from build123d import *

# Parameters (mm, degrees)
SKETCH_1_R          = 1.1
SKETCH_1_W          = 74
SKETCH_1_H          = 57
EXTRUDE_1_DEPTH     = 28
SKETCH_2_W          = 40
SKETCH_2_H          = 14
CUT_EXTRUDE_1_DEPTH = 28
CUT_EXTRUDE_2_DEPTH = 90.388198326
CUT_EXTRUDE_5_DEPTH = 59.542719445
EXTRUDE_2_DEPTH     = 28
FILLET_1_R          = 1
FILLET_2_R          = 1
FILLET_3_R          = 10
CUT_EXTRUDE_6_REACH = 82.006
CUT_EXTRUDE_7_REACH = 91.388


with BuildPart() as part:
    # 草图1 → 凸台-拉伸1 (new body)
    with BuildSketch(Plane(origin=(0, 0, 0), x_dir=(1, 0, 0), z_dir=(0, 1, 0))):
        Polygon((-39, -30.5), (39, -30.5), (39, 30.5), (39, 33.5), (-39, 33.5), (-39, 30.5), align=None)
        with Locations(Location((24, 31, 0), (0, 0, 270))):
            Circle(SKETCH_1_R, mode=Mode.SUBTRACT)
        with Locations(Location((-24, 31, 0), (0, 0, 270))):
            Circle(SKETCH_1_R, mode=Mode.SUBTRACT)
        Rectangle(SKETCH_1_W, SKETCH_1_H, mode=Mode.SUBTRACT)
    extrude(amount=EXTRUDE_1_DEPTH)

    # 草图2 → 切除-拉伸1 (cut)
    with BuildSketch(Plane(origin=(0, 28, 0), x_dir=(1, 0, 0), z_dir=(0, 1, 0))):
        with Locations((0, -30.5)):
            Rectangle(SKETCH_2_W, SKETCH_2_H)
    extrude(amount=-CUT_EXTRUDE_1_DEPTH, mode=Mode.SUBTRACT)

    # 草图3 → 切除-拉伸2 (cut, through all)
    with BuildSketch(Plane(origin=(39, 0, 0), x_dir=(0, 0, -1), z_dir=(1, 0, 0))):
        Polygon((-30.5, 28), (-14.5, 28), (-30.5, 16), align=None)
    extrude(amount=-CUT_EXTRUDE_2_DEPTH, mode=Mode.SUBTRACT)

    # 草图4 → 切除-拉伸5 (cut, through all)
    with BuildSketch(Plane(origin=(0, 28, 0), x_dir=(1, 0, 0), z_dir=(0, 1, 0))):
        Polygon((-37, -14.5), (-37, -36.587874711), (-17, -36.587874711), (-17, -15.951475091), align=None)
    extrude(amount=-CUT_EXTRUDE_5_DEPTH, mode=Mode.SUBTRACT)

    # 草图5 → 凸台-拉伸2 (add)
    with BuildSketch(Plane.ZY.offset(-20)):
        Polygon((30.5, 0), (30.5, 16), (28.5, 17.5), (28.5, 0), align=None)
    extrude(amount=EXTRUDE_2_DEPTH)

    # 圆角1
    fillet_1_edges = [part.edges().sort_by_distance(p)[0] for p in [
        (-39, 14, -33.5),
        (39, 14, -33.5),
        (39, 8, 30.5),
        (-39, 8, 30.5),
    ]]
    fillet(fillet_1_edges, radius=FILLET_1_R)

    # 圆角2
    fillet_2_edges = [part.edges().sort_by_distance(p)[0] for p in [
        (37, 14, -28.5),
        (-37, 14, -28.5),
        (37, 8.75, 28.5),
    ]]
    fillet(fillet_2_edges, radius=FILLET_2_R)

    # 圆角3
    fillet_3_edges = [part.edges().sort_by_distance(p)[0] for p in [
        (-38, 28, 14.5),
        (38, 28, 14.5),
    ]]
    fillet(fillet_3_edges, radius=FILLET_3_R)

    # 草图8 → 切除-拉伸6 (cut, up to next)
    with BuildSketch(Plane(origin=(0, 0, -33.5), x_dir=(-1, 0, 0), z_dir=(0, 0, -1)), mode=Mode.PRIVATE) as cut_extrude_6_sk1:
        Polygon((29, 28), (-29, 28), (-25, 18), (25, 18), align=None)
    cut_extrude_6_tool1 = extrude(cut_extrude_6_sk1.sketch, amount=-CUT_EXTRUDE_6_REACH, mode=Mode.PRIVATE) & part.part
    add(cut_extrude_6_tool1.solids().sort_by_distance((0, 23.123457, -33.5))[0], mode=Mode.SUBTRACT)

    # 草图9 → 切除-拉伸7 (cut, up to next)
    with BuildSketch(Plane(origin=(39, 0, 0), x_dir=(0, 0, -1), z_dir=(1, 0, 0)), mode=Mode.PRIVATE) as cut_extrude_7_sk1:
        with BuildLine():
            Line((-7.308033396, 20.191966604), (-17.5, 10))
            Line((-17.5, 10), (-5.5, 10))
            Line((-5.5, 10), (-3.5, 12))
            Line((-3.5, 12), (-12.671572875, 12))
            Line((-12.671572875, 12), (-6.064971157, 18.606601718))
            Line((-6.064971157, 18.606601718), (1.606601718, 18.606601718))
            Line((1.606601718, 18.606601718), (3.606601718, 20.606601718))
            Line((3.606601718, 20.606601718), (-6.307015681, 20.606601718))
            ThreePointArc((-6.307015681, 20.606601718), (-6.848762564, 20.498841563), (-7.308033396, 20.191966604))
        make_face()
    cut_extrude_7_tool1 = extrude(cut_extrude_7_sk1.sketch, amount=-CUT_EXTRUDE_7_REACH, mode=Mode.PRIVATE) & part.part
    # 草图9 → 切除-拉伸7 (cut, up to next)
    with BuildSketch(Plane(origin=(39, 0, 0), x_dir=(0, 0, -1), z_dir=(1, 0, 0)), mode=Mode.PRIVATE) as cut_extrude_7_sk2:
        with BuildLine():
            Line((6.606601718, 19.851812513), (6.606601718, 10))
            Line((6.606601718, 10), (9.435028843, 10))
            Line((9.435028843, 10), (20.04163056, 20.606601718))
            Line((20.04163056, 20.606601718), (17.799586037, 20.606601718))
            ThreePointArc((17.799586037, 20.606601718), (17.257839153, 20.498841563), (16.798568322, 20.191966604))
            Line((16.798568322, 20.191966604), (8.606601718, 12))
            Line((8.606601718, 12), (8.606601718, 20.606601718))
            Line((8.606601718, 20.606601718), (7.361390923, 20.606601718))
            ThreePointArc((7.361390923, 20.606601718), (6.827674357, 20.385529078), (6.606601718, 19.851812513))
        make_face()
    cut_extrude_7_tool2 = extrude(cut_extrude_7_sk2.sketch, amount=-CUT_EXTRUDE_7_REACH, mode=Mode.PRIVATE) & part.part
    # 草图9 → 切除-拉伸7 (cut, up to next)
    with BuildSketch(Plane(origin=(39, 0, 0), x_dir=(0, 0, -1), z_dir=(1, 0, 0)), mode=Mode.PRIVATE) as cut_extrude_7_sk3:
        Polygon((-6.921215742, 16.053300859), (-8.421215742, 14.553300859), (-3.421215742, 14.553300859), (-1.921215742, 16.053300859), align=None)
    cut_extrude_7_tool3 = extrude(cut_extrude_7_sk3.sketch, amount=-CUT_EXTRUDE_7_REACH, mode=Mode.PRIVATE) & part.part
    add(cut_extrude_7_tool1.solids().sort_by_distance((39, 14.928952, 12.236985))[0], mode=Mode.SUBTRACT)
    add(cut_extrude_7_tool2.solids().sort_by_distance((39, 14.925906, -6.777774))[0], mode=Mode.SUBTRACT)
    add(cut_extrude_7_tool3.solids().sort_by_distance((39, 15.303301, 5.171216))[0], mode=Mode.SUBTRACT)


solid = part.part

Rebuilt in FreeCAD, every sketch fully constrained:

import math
import FreeCAD as App
import Part
import Sketcher
Q = App.Units.Quantity


def edges_at(feature, points):
    """Names of the edges that pass closest to the given points."""
    edges = feature.Shape.Edges
    near = lambda p: min(range(len(edges)), key=lambda i: edges[i].distToShape(Part.Vertex(*p))[0])
    return sorted({f"Edge{near(p) + 1}" for p in points})

doc = App.newDocument("Part")
body = doc.addObject("PartDesign::Body", "Body")

sketch1 = body.newObject("Sketcher::SketchObject", "Sketch")
sketch1.AttachmentSupport = (doc.getObject("XZ_Plane"), [""])
sketch1.MapMode = "FlatFace"
sketch1.addGeometry([
    Part.LineSegment(App.Vector(-39, 30.5, 0), App.Vector(39, 30.5, 0)),
    Part.LineSegment(App.Vector(39, 30.5, 0), App.Vector(39, -33.5, 0)),
    Part.LineSegment(App.Vector(39, -33.5, 0), App.Vector(-39, -33.5, 0)),
    Part.LineSegment(App.Vector(-39, -33.5, 0), App.Vector(-39, 30.5, 0)),
    Part.LineSegment(App.Vector(37, 28.5, 0), App.Vector(-37, 28.5, 0)),
    Part.LineSegment(App.Vector(-37, 28.5, 0), App.Vector(-37, -28.5, 0)),
    Part.LineSegment(App.Vector(-37, -28.5, 0), App.Vector(37, -28.5, 0)),
    Part.LineSegment(App.Vector(37, -28.5, 0), App.Vector(37, 28.5, 0)),
    Part.Circle(App.Vector(-24, -31, 0), App.Vector(0, 0, 1), 1.1),
    Part.Circle(App.Vector(24, -31, 0), App.Vector(0, 0, 1), 1.1),
], False)
sketch1.addConstraint([
    Sketcher.Constraint("Coincident", 0, 2, 1, 1),
    Sketcher.Constraint("Coincident", 1, 2, 2, 1),
    Sketcher.Constraint("Coincident", 2, 2, 3, 1),
    Sketcher.Constraint("Coincident", 3, 2, 0, 1),
    Sketcher.Constraint("Coincident", 4, 2, 5, 1),
    Sketcher.Constraint("Coincident", 5, 2, 6, 1),
    Sketcher.Constraint("Coincident", 6, 2, 7, 1),
    Sketcher.Constraint("Coincident", 7, 2, 4, 1),
    Sketcher.Constraint("Horizontal", 0),
    Sketcher.Constraint("Vertical", 1),
    Sketcher.Constraint("Horizontal", 2),
    Sketcher.Constraint("Vertical", 3),
    Sketcher.Constraint("Horizontal", 4),
    Sketcher.Constraint("Vertical", 5),
    Sketcher.Constraint("Horizontal", 6),
    Sketcher.Constraint("Vertical", 7),
    Sketcher.Constraint("Equal", 8, 9),
    Sketcher.Constraint("Symmetric", 4, 2, 6, 2, -1, 1),
    Sketcher.Constraint("Symmetric", 8, 3, 9, 3, -2),
    Sketcher.Constraint("Diameter", 8, Q("2.2 mm")),
    Sketcher.Constraint("DistanceX", 0, 1, 0, 2, Q("78 mm")),
    Sketcher.Constraint("DistanceX", 4, 2, 4, 1, Q("74 mm")),
    Sketcher.Constraint("DistanceY", 1, 2, 1, 1, Q("64 mm")),
    Sketcher.Constraint("DistanceY", 5, 2, 5, 1, Q("57 mm")),
    Sketcher.Constraint("DistanceX", 8, 3, -1, 1, Q("24 mm")),
    Sketcher.Constraint("DistanceY", 8, 3, -1, 1, Q("31 mm")),
    Sketcher.Constraint("DistanceX", -1, 1, 0, 2, Q("39 mm")),
    Sketcher.Constraint("DistanceY", 4, 2, 3, 2, Q("2 mm")),
])
pad1 = body.newObject("PartDesign::Pad", "Pad")
pad1.Profile = sketch1
pad1.Length = 28
pad1.Reversed = True

sketch2 = body.newObject("Sketcher::SketchObject", "Sketch001")
sketch2.AttachmentSupport = (doc.getObject("XZ_Plane"), [""])
sketch2.MapMode = "FlatFace"
sketch2.AttachmentOffset = App.Placement(App.Vector(0, 0, -28), App.Rotation())
sketch2.addGeometry([
    Part.LineSegment(App.Vector(-20, 24, 0), App.Vector(-20, 38, 0)),
    Part.LineSegment(App.Vector(-20, 38, 0), App.Vector(20, 38, 0)),
    Part.LineSegment(App.Vector(20, 38, 0), App.Vector(20, 24, 0)),
    Part.LineSegment(App.Vector(20, 24, 0), App.Vector(-20, 24, 0)),
], False)
sketch2.addConstraint([
    Sketcher.Constraint("Coincident", 0, 2, 1, 1),
    Sketcher.Constraint("Coincident", 1, 2, 2, 1),
    Sketcher.Constraint("Coincident", 2, 2, 3, 1),
    Sketcher.Constraint("Coincident", 3, 2, 0, 1),
    Sketcher.Constraint("Vertical", 0),
    Sketcher.Constraint("Horizontal", 1),
    Sketcher.Constraint("Vertical", 2),
    Sketcher.Constraint("Horizontal", 3),
    Sketcher.Constraint("DistanceX", 1, 1, 1, 2, Q("40 mm")),
    Sketcher.Constraint("DistanceY", 0, 1, 0, 2, Q("14 mm")),
    Sketcher.Constraint("DistanceX", 0, 2, -1, 1, Q("20 mm")),
    Sketcher.Constraint("DistanceY", -1, 1, 0, 2, Q("37.5 mm")),
])
pocket1 = body.newObject("PartDesign::Pocket", "Pocket")
pocket1.Profile = sketch2
pocket1.Length = 28
pocket1.Reversed = True

sketch3 = body.newObject("Sketcher::SketchObject", "Sketch002")
sketch3.AttachmentSupport = (doc.getObject("YZ_Plane"), [""])
sketch3.MapMode = "FlatFace"
sketch3.AttachmentOffset = App.Placement(App.Vector(0, 0, 39), App.Rotation())
sketch3.addGeometry([
    Part.LineSegment(App.Vector(28, 14, 0), App.Vector(28, 30, 0)),
    Part.LineSegment(App.Vector(28, 30, 0), App.Vector(16, 30, 0)),
    Part.LineSegment(App.Vector(16, 30, 0), App.Vector(28, 14, 0)),
], False)
sketch3.addConstraint([
    Sketcher.Constraint("Coincident", 0, 2, 1, 1),
    Sketcher.Constraint("Coincident", 1, 2, 2, 1),
    Sketcher.Constraint("Coincident", 2, 2, 0, 1),
    Sketcher.Constraint("Vertical", 0),
    Sketcher.Constraint("Horizontal", 1),
    Sketcher.Constraint("DistanceX", 1, 2, 1, 1, Q("12 mm")),
    Sketcher.Constraint("DistanceY", 0, 1, 0, 2, Q("16 mm")),
    Sketcher.Constraint("DistanceX", -1, 1, 0, 2, Q("28 mm")),
    Sketcher.Constraint("DistanceY", -1, 1, 0, 2, Q("30.5 mm")),
])
pocket2 = body.newObject("PartDesign::Pocket", "Pocket001")
pocket2.Profile = sketch3
pocket2.Type = "ThroughAll"

sketch4 = body.newObject("Sketcher::SketchObject", "Sketch003")
sketch4.AttachmentSupport = (doc.getObject("XZ_Plane"), [""])
sketch4.MapMode = "FlatFace"
sketch4.AttachmentOffset = App.Placement(App.Vector(0, 0, -28), App.Rotation())
sketch4.addGeometry([
    Part.LineSegment(App.Vector(-37, 14, 0), App.Vector(-37, 37, 0)),
    Part.LineSegment(App.Vector(-37, 37, 0), App.Vector(-17, 37, 0)),
    Part.LineSegment(App.Vector(-17, 37, 0), App.Vector(-17, 16, 0)),
    Part.LineSegment(App.Vector(-17, 16, 0), App.Vector(-37, 14, 0)),
], False)
sketch4.addConstraint([
    Sketcher.Constraint("Coincident", 0, 2, 1, 1),
    Sketcher.Constraint("Coincident", 1, 2, 2, 1),
    Sketcher.Constraint("Coincident", 2, 2, 3, 1),
    Sketcher.Constraint("Coincident", 3, 2, 0, 1),
    Sketcher.Constraint("Vertical", 0),
    Sketcher.Constraint("Horizontal", 1),
    Sketcher.Constraint("Vertical", 2),
    Sketcher.Constraint("DistanceX", 1, 1, 1, 2, Q("20 mm")),
    Sketcher.Constraint("DistanceX", 0, 2, -1, 1, Q("37 mm")),
    Sketcher.Constraint("DistanceY", -1, 1, 3, 2, Q("14.5 mm")),
    Sketcher.Constraint("DistanceY", 2, 2, 2, 1, Q("20.6364 mm")),
    Sketcher.Constraint("Distance", 3, Q("20.0526 mm")),
])
pocket3 = body.newObject("PartDesign::Pocket", "Pocket002")
pocket3.Profile = sketch4
pocket3.Type = "ThroughAll"
pocket3.Reversed = True

sketch5 = body.newObject("Sketcher::SketchObject", "Sketch004")
sketch5.AttachmentSupport = (doc.getObject("YZ_Plane"), [""])
sketch5.MapMode = "FlatFace"
sketch5.AttachmentOffset = App.Placement(App.Vector(0, 0, 20), App.Rotation())
sketch5.addGeometry([
    Part.LineSegment(App.Vector(0, 30.5, 0), App.Vector(16, 30.5, 0)),
    Part.LineSegment(App.Vector(16, 30.5, 0), App.Vector(17.5, 28.5, 0)),
    Part.LineSegment(App.Vector(17.5, 28.5, 0), App.Vector(0, 28.5, 0)),
    Part.LineSegment(App.Vector(0, 28.5, 0), App.Vector(0, 30.5, 0)),
], False)
sketch5.addConstraint([
    Sketcher.Constraint("Coincident", 0, 2, 1, 1),
    Sketcher.Constraint("Coincident", 1, 2, 2, 1),
    Sketcher.Constraint("Coincident", 2, 2, 3, 1),
    Sketcher.Constraint("Coincident", 3, 2, 0, 1),
    Sketcher.Constraint("Horizontal", 0),
    Sketcher.Constraint("Horizontal", 2),
    Sketcher.Constraint("Vertical", 3),
    Sketcher.Constraint("PointOnObject", 2, 2, -2),
    Sketcher.Constraint("DistanceX", 0, 1, 0, 2, Q("16 mm")),
    Sketcher.Constraint("DistanceY", 3, 1, 3, 2, Q("2 mm")),
    Sketcher.Constraint("DistanceX", 2, 2, 2, 1, Q("17.5 mm")),
    Sketcher.Constraint("DistanceY", -1, 1, 0, 2, Q("30.5 mm")),
])
pad2 = body.newObject("PartDesign::Pad", "Pad001")
pad2.Profile = sketch5
pad2.Length = 28
pad2.Reversed = True
doc.recompute()

fillet = body.newObject("PartDesign::Fillet", "Fillet")
fillet.Base = (pad2, edges_at(pad2, [
    (-39, 14, -33.5),
    (39, 14, -33.5),
    (39, 8, 30.5),
    (-39, 8, 30.5),
]))
fillet.Radius = 1
doc.recompute()

fillet2 = body.newObject("PartDesign::Fillet", "Fillet001")
fillet2.Base = (fillet, edges_at(fillet, [(37, 14, -28.5), (-37, 14, -28.5), (37, 8.75, 28.5)]))
fillet2.Radius = 1
doc.recompute()

fillet3 = body.newObject("PartDesign::Fillet", "Fillet002")
fillet3.Base = (fillet2, edges_at(fillet2, [(-38, 28, 14.5), (38, 28, 14.5)]))
fillet3.Radius = 10

sketch6 = body.newObject("Sketcher::SketchObject", "Sketch005")
sketch6.AttachmentSupport = (doc.getObject("XY_Plane"), [""])
sketch6.MapMode = "FlatFace"
sketch6.AttachmentOffset = App.Placement(App.Vector(0, 0, -33.5), App.Rotation())
sketch6.addGeometry([
    Part.LineSegment(App.Vector(-29, 28, 0), App.Vector(29, 28, 0)),
    Part.LineSegment(App.Vector(29, 28, 0), App.Vector(25, 18, 0)),
    Part.LineSegment(App.Vector(25, 18, 0), App.Vector(-25, 18, 0)),
    Part.LineSegment(App.Vector(-25, 18, 0), App.Vector(-29, 28, 0)),
], False)
sketch6.addConstraint([
    Sketcher.Constraint("Coincident", 0, 2, 1, 1),
    Sketcher.Constraint("Coincident", 1, 2, 2, 1),
    Sketcher.Constraint("Coincident", 2, 2, 3, 1),
    Sketcher.Constraint("Coincident", 3, 2, 0, 1),
    Sketcher.Constraint("Horizontal", 0),
    Sketcher.Constraint("Horizontal", 2),
    Sketcher.Constraint("Equal", 1, 3),
    Sketcher.Constraint("DistanceX", 0, 1, 0, 2, Q("58 mm")),
    Sketcher.Constraint("DistanceX", 2, 2, 2, 1, Q("50 mm")),
    Sketcher.Constraint("DistanceX", -1, 1, 0, 2, Q("29 mm")),
    Sketcher.Constraint("DistanceY", -1, 1, 0, 2, Q("28 mm")),
    Sketcher.Constraint("DistanceY", -1, 1, 1, 2, Q("18 mm")),
])
pocket4 = body.newObject("PartDesign::Pocket", "Pocket003")
pocket4.Profile = sketch6
pocket4.Type = "UpToFirst"
pocket4.Reversed = True

sketch7 = body.newObject("Sketcher::SketchObject", "Sketch006")
sketch7.AttachmentSupport = (doc.getObject("YZ_Plane"), [""])
sketch7.MapMode = "FlatFace"
sketch7.AttachmentOffset = App.Placement(App.Vector(0, 0, 39), App.Rotation())
sketch7.addGeometry([
    Part.LineSegment(App.Vector(20.2, 7.3, 0), App.Vector(10, 17.5, 0)),
    Part.LineSegment(App.Vector(10, 17.5, 0), App.Vector(10, 5.5, 0)),
    Part.LineSegment(App.Vector(10, 5.5, 0), App.Vector(12, 3.5, 0)),
    Part.LineSegment(App.Vector(12, 3.5, 0), App.Vector(12, 12.7, 0)),
    Part.LineSegment(App.Vector(12, 12.7, 0), App.Vector(18.6, 6.1, 0)),
    Part.LineSegment(App.Vector(18.6, 6.1, 0), App.Vector(18.6, -1.6, 0)),
    Part.LineSegment(App.Vector(18.6, -1.6, 0), App.Vector(20.6, -3.6, 0)),
    Part.LineSegment(App.Vector(20.6, -3.6, 0), App.Vector(20.6, 6.3, 0)),
    Part.ArcOfCircle(Part.Circle(App.Vector(19.2, 6.3, 0), App.Vector(0, 0, 1), 1.4), math.radians(0), math.radians(45)),
], False)
sketch7.addConstraint([
    Sketcher.Constraint("Coincident", 0, 2, 1, 1),
    Sketcher.Constraint("Coincident", 1, 2, 2, 1),
    Sketcher.Constraint("Coincident", 2, 2, 3, 1),
    Sketcher.Constraint("Coincident", 3, 2, 4, 1),
    Sketcher.Constraint("Coincident", 4, 2, 5, 1),
    Sketcher.Constraint("Coincident", 5, 2, 6, 1),
    Sketcher.Constraint("Coincident", 6, 2, 7, 1),
    Sketcher.Constraint("Tangent", 7, 2, 8, 1),
    Sketcher.Constraint("Tangent", 8, 2, 0, 1),
    Sketcher.Constraint("Vertical", 1),
    Sketcher.Constraint("Vertical", 3),
    Sketcher.Constraint("Vertical", 5),
    Sketcher.Constraint("Vertical", 7),
    Sketcher.Constraint("Parallel", 0, 2),
    Sketcher.Constraint("Parallel", 2, 4),
    Sketcher.Constraint("Parallel", 4, 6),
    Sketcher.Constraint("Equal", 2, 6),
    Sketcher.Constraint("DistanceY", 1, 2, 1, 1, Q("12 mm")),
    Sketcher.Constraint("Angle", 0, Q("135 deg")),
    Sketcher.Constraint("DistanceX", -1, 1, 0, 2, Q("10 mm")),
    Sketcher.Constraint("DistanceX", -1, 1, 2, 2, Q("12 mm")),
    Sketcher.Constraint("DistanceY", -1, 1, 0, 2, Q("17.5 mm")),
    Sketcher.Constraint("Radius", 8, Q("1.415653 mm")),
    Sketcher.Constraint("DistanceX", -1, 1, 4, 2, Q("18.606602 mm")),
    Sketcher.Constraint("DistanceY", 5, 2, -1, 1, Q("1.606602 mm")),
    Sketcher.Constraint("DistanceY", 3, 1, 3, 2, Q("9.171573 mm")),
])
pocket5 = body.newObject("PartDesign::Pocket", "Pocket004")
pocket5.Profile = sketch7
pocket5.Type = "UpToFirst"

sketch8 = body.newObject("Sketcher::SketchObject", "Sketch007")
sketch8.AttachmentSupport = (doc.getObject("YZ_Plane"), [""])
sketch8.MapMode = "FlatFace"
sketch8.AttachmentOffset = App.Placement(App.Vector(0, 0, 39), App.Rotation())
sketch8.addGeometry([
    Part.LineSegment(App.Vector(19.9, -6.6, 0), App.Vector(10, -6.6, 0)),
    Part.LineSegment(App.Vector(10, -6.6, 0), App.Vector(10, -9.4, 0)),
    Part.LineSegment(App.Vector(10, -9.4, 0), App.Vector(20.6, -20, 0)),
    Part.LineSegment(App.Vector(20.6, -20, 0), App.Vector(20.6, -17.8, 0)),
    Part.ArcOfCircle(Part.Circle(App.Vector(19.2, -17.8, 0), App.Vector(0, 0, 1), 1.4), math.radians(0), math.radians(45)),
    Part.LineSegment(App.Vector(20.2, -16.8, 0), App.Vector(12, -8.6, 0)),
    Part.LineSegment(App.Vector(12, -8.6, 0), App.Vector(20.6, -8.6, 0)),
    Part.LineSegment(App.Vector(20.6, -8.6, 0), App.Vector(20.6, -7.4, 0)),
    Part.ArcOfCircle(Part.Circle(App.Vector(19.9, -7.4, 0), App.Vector(0, 0, 1), 0.8), math.radians(0), math.radians(90)),
], False)
sketch8.addConstraint([
    Sketcher.Constraint("Coincident", 0, 2, 1, 1),
    Sketcher.Constraint("Coincident", 1, 2, 2, 1),
    Sketcher.Constraint("Coincident", 2, 2, 3, 1),
    Sketcher.Constraint("Tangent", 3, 2, 4, 1),
    Sketcher.Constraint("Tangent", 4, 2, 5, 1),
    Sketcher.Constraint("Coincident", 5, 2, 6, 1),
    Sketcher.Constraint("Coincident", 6, 2, 7, 1),
    Sketcher.Constraint("Tangent", 7, 2, 8, 1),
    Sketcher.Constraint("Tangent", 8, 2, 0, 1),
    Sketcher.Constraint("Horizontal", 0),
    Sketcher.Constraint("Vertical", 1),
    Sketcher.Constraint("Vertical", 3),
    Sketcher.Constraint("Horizontal", 6),
    Sketcher.Constraint("Vertical", 7),
    Sketcher.Constraint("Parallel", 2, 5),
    Sketcher.Constraint("Vertical", 3, 2, 6, 2),
    Sketcher.Constraint("Angle", 2, Q("-45 deg")),
    Sketcher.Constraint("Distance", 2, Q("15 mm")),
    Sketcher.Constraint("DistanceX", -1, 1, 0, 2, Q("10 mm")),
    Sketcher.Constraint("DistanceX", -1, 1, 5, 2, Q("12 mm")),
    Sketcher.Constraint("DistanceY", 5, 2, 0, 2, Q("2 mm")),
    Sketcher.Constraint("Radius", 8, Q("0.754789 mm")),
    Sketcher.Constraint("Radius", 4, Q("1.415653 mm")),
    Sketcher.Constraint("DistanceY", 0, 2, -1, 1, Q("6.606602 mm")),
    Sketcher.Constraint("DistanceY", 1, 2, 1, 1, Q("2.828427 mm")),
])
pocket6 = body.newObject("PartDesign::Pocket", "Pocket005")
pocket6.Profile = sketch8
pocket6.Type = "UpToFirst"

sketch9 = body.newObject("Sketcher::SketchObject", "Sketch008")
sketch9.AttachmentSupport = (doc.getObject("YZ_Plane"), [""])
sketch9.MapMode = "FlatFace"
sketch9.AttachmentOffset = App.Placement(App.Vector(0, 0, 39), App.Rotation())
sketch9.addGeometry([
    Part.LineSegment(App.Vector(16.1, 6.9, 0), App.Vector(14.6, 8.4, 0)),
    Part.LineSegment(App.Vector(14.6, 8.4, 0), App.Vector(14.6, 3.4, 0)),
    Part.LineSegment(App.Vector(14.6, 3.4, 0), App.Vector(16.1, 1.9, 0)),
    Part.LineSegment(App.Vector(16.1, 1.9, 0), App.Vector(16.1, 6.9, 0)),
], False)
sketch9.addConstraint([
    Sketcher.Constraint("Coincident", 0, 2, 1, 1),
    Sketcher.Constraint("Coincident", 1, 2, 2, 1),
    Sketcher.Constraint("Coincident", 2, 2, 3, 1),
    Sketcher.Constraint("Coincident", 3, 2, 0, 1),
    Sketcher.Constraint("Vertical", 1),
    Sketcher.Constraint("Vertical", 3),
    Sketcher.Constraint("Parallel", 0, 2),
    Sketcher.Constraint("DistanceY", 1, 2, 1, 1, Q("5 mm")),
    Sketcher.Constraint("Angle", 0, Q("135 deg")),
    Sketcher.Constraint("DistanceX", 1, 2, 2, 2, Q("1.5 mm")),
    Sketcher.Constraint("DistanceX", -1, 1, 0, 2, Q("14.553301 mm")),
    Sketcher.Constraint("DistanceY", -1, 1, 0, 2, Q("8.421216 mm")),
])
pocket7 = body.newObject("PartDesign::Pocket", "Pocket006")
pocket7.Profile = sketch9
pocket7.Type = "UpToFirst"

doc.recompute()
